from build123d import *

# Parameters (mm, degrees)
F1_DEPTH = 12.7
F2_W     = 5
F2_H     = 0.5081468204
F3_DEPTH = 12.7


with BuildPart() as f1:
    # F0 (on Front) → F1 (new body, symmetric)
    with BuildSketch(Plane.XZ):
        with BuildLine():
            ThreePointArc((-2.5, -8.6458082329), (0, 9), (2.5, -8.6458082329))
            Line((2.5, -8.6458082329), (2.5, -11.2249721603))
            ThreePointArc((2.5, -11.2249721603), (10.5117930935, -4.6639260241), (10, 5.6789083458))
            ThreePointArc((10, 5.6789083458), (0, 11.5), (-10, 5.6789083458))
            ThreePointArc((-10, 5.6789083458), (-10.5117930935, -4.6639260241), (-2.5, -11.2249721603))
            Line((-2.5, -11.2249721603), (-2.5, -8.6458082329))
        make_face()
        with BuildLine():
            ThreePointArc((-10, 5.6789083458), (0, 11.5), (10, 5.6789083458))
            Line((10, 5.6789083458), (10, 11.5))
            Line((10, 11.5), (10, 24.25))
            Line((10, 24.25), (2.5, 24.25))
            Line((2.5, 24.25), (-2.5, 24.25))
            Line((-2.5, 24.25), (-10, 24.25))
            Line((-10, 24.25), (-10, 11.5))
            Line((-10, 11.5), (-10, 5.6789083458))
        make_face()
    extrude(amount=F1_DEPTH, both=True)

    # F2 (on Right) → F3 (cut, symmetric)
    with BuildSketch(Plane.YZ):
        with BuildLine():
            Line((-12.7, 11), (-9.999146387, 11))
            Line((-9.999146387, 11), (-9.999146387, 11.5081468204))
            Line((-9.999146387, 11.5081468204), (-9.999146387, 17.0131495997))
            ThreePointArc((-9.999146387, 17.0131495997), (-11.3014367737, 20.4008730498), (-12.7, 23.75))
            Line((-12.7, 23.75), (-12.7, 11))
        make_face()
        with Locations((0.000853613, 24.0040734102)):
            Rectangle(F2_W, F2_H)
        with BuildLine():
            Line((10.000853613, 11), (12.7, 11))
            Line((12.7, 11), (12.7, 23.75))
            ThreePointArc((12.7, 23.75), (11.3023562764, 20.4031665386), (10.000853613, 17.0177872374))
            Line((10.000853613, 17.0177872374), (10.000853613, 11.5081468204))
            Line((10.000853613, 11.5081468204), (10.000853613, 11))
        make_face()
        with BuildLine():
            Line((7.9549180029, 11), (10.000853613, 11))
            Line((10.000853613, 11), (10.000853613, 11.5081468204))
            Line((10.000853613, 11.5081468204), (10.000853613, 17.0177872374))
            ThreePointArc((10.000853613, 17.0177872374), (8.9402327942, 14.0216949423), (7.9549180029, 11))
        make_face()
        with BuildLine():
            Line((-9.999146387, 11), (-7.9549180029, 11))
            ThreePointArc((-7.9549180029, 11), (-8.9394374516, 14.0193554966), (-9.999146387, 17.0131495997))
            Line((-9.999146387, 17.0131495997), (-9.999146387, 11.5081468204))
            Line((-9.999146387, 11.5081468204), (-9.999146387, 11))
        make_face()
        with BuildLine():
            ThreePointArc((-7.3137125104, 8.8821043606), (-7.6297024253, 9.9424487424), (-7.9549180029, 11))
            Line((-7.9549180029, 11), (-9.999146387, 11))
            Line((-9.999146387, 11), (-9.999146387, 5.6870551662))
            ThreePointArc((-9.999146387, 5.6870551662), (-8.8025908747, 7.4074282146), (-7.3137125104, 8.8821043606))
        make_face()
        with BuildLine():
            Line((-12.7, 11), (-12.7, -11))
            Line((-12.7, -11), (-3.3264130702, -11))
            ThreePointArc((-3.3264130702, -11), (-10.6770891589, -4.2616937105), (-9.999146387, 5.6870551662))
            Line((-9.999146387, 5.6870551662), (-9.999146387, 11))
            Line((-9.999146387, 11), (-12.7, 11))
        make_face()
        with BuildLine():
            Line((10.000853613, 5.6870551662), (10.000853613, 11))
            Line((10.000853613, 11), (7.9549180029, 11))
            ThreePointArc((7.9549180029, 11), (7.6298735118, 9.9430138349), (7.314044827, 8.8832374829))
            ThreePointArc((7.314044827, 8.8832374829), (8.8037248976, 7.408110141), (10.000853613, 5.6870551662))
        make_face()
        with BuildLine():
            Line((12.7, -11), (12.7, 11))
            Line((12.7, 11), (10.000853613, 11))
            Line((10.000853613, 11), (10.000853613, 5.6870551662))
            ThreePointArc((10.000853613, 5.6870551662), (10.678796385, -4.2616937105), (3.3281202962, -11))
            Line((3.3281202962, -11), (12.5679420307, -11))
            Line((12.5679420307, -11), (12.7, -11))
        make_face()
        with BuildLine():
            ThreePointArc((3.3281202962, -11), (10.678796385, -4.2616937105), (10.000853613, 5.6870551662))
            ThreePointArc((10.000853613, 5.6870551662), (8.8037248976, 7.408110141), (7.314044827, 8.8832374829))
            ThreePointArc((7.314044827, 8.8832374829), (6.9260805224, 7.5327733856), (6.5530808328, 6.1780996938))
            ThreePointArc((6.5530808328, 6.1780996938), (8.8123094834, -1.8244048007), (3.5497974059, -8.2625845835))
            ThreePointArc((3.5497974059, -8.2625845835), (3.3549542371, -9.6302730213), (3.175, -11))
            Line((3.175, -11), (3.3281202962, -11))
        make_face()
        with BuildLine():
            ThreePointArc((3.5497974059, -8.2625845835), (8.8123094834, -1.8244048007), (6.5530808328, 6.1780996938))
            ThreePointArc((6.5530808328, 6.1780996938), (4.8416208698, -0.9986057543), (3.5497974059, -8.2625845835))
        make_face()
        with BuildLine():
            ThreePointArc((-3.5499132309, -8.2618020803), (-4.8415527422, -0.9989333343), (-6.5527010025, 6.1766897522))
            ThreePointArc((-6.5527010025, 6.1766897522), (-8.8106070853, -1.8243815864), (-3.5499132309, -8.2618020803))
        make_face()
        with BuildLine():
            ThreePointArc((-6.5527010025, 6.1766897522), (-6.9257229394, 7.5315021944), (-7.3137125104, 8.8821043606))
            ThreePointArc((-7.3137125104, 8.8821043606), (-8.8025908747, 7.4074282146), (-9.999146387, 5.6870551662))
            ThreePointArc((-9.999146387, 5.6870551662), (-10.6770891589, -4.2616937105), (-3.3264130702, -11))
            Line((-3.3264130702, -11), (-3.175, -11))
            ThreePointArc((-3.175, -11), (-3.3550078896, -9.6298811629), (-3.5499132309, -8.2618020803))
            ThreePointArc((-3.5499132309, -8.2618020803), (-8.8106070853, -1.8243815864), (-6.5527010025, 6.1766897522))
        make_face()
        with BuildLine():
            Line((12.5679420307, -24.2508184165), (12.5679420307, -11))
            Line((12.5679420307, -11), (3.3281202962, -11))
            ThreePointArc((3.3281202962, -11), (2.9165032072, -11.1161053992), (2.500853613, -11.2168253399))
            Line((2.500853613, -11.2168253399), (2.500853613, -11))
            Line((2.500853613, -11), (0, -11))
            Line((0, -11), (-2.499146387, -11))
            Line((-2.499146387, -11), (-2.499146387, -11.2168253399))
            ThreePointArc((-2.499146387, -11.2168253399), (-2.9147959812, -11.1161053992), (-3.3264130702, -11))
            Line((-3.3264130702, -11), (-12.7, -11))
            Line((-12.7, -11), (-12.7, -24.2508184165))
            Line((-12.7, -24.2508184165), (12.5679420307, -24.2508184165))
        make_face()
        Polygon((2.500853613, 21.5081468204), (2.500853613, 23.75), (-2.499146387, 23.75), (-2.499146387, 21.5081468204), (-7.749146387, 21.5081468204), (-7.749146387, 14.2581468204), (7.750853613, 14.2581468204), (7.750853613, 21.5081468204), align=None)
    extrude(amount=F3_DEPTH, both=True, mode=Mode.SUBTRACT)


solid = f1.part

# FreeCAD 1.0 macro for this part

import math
import FreeCAD as App
import Part
import Sketcher

V = App.Vector

doc = App.newDocument("Part")
params = doc.addObject("Spreadsheet::Sheet", "Params")
for row, (alias, value) in enumerate([
    ("sketch1_radius", "9 mm"),
    ("sketch1_radius2", "11.5 mm"),
    ("sketch1_width", "20 mm"),
    ("pad1_length", "25.4 mm"),
    ("sketch2_radius", "127 mm"),
    ("sketch2_radius2", "11.5 mm"),
    ("sketch2_width", "5 mm"),
    ("sketch2_width2", "15.5 mm"),
    ("sketch2_height", "34.75 mm"),
    ("pocket1_length", "25.4 mm"),
], start=1):
    params.set(f"A{row}", alias)
    params.set(f"B{row}", "=" + value)
    params.setAlias(f"B{row}", alias)

body = doc.addObject("PartDesign::Body", "Body")
body.AllowCompound = True

sketch1 = body.newObject("Sketcher::SketchObject", "Sketch")
sketch1.AttachmentSupport = (doc.getObject("XZ_Plane"), [""])
sketch1.MapMode = "FlatFace"
sketch1.addGeometry([
    Part.ArcOfCircle(Part.Circle(V(0, 0, 0), V(0, 0, 1), 9), math.radians(-74), math.radians(254)),
    Part.LineSegment(V(2.5, -8.6, 0), V(2.5, -11.2, 0)),
    Part.ArcOfCircle(Part.Circle(V(0, 0, 0), V(0, 0, 1), 11.5), math.radians(-77), math.radians(30)),
    Part.LineSegment(V(10, 5.7, 0), V(10, 24.2, 0)),
    Part.LineSegment(V(10, 24.2, 0), V(-10, 24.2, 0)),
    Part.LineSegment(V(-10, 24.2, 0), V(-10, 5.7, 0)),
    Part.ArcOfCircle(Part.Circle(V(0, 0, 0), V(0, 0, 1), 11.5), math.radians(150), math.radians(257)),
    Part.LineSegment(V(-2.5, -11.2, 0), V(-2.5, -8.6, 0)),
], False)
sketch1.addConstraint([
    Sketcher.Constraint("Coincident", 0, 1, 1, 1),
    Sketcher.Constraint("Coincident", 1, 2, 2, 1),
    Sketcher.Constraint("Coincident", 2, 2, 3, 1),
    Sketcher.Constraint("Coincident", 3, 2, 4, 1),
    Sketcher.Constraint("Coincident", 4, 2, 5, 1),
    Sketcher.Constraint("Coincident", 5, 2, 6, 1),
    Sketcher.Constraint("Coincident", 6, 2, 7, 1),
    Sketcher.Constraint("Coincident", 7, 2, 0, 2),
    Sketcher.Constraint("Vertical", 1),
    Sketcher.Constraint("Vertical", 3),
    Sketcher.Constraint("Horizontal", 4),
    Sketcher.Constraint("Vertical", 5),
    Sketcher.Constraint("Vertical", 7),
    Sketcher.Constraint("Coincident", 0, 3, -1, 1),
    Sketcher.Constraint("Coincident", 2, 3, -1, 1),
    Sketcher.Constraint("Coincident", 6, 3, -1, 1),
    Sketcher.Constraint("Equal", 2, 6),
    Sketcher.Constraint("Horizontal", 2, 2, 5, 2),
    Sketcher.Constraint("Horizontal", 1, 2, 6, 2),
    Sketcher.Constraint("Radius", 0, 9.0),
    Sketcher.Constraint("Radius", 2, 11.5),
    Sketcher.Constraint("DistanceX", 4, 2, 4, 1, 20.0),
    Sketcher.Constraint("DistanceX", 6, 2, 1, 2, 5.0),
    Sketcher.Constraint("DistanceY", -1, 1, 3, 2, 24.25),
])
sketch1.setExpression("Constraints[19]", "Params.sketch1_radius")
sketch1.setExpression("Constraints[20]", "Params.sketch1_radius2")
sketch1.setExpression("Constraints[21]", "Params.sketch1_width")
pad1 = body.newObject("PartDesign::Pad", "Pad")
pad1.Profile = sketch1
pad1.setExpression("Length", "Params.pad1_length")
pad1.Midplane = True

sketch2 = body.newObject("Sketcher::SketchObject", "Sketch001")
sketch2.AttachmentSupport = (doc.getObject("YZ_Plane"), [""])
sketch2.MapMode = "FlatFace"
sketch2.addGeometry([
    Part.ArcOfCircle(Part.Circle(V(-129.18, -26.86, 0), V(0, 0, 1), 127), math.radians(16.34), math.radians(17.34)),
    Part.ArcOfCircle(Part.Circle(V(-129.18, -26.86, 0), V(0, 0, 1), 127), math.radians(17.34), math.radians(20.21)),
    Part.ArcOfCircle(Part.Circle(V(-129.18, -26.86, 0), V(0, 0, 1), 127), math.radians(20.21), math.radians(23.48)),
    Part.LineSegment(V(-12.7, 23.75, 0), V(-12.7, -24.25, 0)),
    Part.LineSegment(V(-12.7, -24.25, 0), V(12.57, -24.25, 0)),
    Part.LineSegment(V(12.57, -24.25, 0), V(12.57, -11, 0)),
    Part.LineSegment(V(12.57, -11, 0), V(12.7, -11, 0)),
    Part.LineSegment(V(12.7, -11, 0), V(12.7, 23.75, 0)),
    Part.ArcOfCircle(Part.Circle(V(129.18, -26.86, 0), V(0, 0, 1), 127), math.radians(156.52), math.radians(159.79)),
    Part.ArcOfCircle(Part.Circle(V(129.18, -26.86, 0), V(0, 0, 1), 127), math.radians(159.79), math.radians(162.66)),
    Part.ArcOfCircle(Part.Circle(V(129.18, -26.86, 0), V(0, 0, 1), 127), math.radians(162.66), math.radians(163.65)),
    Part.ArcOfCircle(Part.Circle(V(129.18, -26.86, 0), V(0, 0, 1), 127), math.radians(163.65), math.radians(164.92)),
    Part.ArcOfCircle(Part.Circle(V(129.18, -26.86, 0), V(0, 0, 1), 127), math.radians(164.92), math.radians(171.58)),
    Part.ArcOfCircle(Part.Circle(V(129.18, -26.86, 0), V(0, 0, 1), 127), math.radians(171.58), math.radians(172.83)),
    Part.LineSegment(V(3.17, -11, 0), V(3.33, -11, 0)),
    Part.ArcOfCircle(Part.Circle(V(0, 0.01, 0), V(0, 0, 1), 11.5), math.radians(-77.44), math.radians(-73.18)),
    Part.LineSegment(V(2.5, -11.22, 0), V(2.5, -11, 0)),
    Part.LineSegment(V(2.5, -11, 0), V(-2.5, -11, 0)),
    Part.LineSegment(V(-2.5, -11, 0), V(-2.5, -11.22, 0)),
    Part.ArcOfCircle(Part.Circle(V(0, 0.01, 0), V(0, 0, 1), 11.5), math.radians(-106.82), math.radians(-102.56)),
    Part.LineSegment(V(-3.33, -11, 0), V(-3.17, -11, 0)),
    Part.ArcOfCircle(Part.Circle(V(-129.18, -26.86, 0), V(0, 0, 1), 127), math.radians(7.17), math.radians(8.42)),
    Part.ArcOfCircle(Part.Circle(V(-129.18, -26.86, 0), V(0, 0, 1), 127), math.radians(8.42), math.radians(15.08)),
    Part.ArcOfCircle(Part.Circle(V(-129.18, -26.86, 0), V(0, 0, 1), 127), math.radians(15.08), math.radians(16.34)),
    Part.LineSegment(V(-2.5, 24.26, 0), V(-2.5, 21.51, 0)),
    Part.LineSegment(V(-2.5, 21.51, 0), V(-7.75, 21.51, 0)),
    Part.LineSegment(V(-7.75, 21.51, 0), V(-7.75, 14.26, 0)),
    Part.LineSegment(V(-7.75, 14.26, 0), V(7.75, 14.26, 0)),
    Part.LineSegment(V(7.75, 14.26, 0), V(7.75, 21.51, 0)),
    Part.LineSegment(V(7.75, 21.51, 0), V(2.5, 21.51, 0)),
    Part.LineSegment(V(2.5, 21.51, 0), V(2.5, 24.26, 0)),
    Part.LineSegment(V(2.5, 24.26, 0), V(-2.5, 24.26, 0)),
], False)
sketch2.addConstraint([
    Sketcher.Constraint("Tangent", 0, 2, 1, 1),
    Sketcher.Constraint("Tangent", 1, 2, 2, 1),
    Sketcher.Constraint("Coincident", 2, 2, 3, 1),
    Sketcher.Constraint("Coincident", 3, 2, 4, 1),
    Sketcher.Constraint("Coincident", 4, 2, 5, 1),
    Sketcher.Constraint("Coincident", 5, 2, 6, 1),
    Sketcher.Constraint("Coincident", 6, 2, 7, 1),
    Sketcher.Constraint("Coincident", 7, 2, 8, 1),
    Sketcher.Constraint("Tangent", 8, 2, 9, 1),
    Sketcher.Constraint("Tangent", 9, 2, 10, 1),
    Sketcher.Constraint("Tangent", 10, 2, 11, 1),
    Sketcher.Constraint("Tangent", 11, 2, 12, 1),
    Sketcher.Constraint("Tangent", 12, 2, 13, 1),
    Sketcher.Constraint("Coincident", 13, 2, 14, 1),
    Sketcher.Constraint("Coincident", 14, 2, 15, 2),
    Sketcher.Constraint("Coincident", 15, 1, 16, 1),
    Sketcher.Constraint("Coincident", 16, 2, 17, 1),
    Sketcher.Constraint("Coincident", 17, 2, 18, 1),
    Sketcher.Constraint("Coincident", 18, 2, 19, 2),
    Sketcher.Constraint("Coincident", 19, 1, 20, 1),
    Sketcher.Constraint("Coincident", 20, 2, 21, 1),
    Sketcher.Constraint("Tangent", 21, 2, 22, 1),
    Sketcher.Constraint("Tangent", 22, 2, 23, 1),
    Sketcher.Constraint("Tangent", 23, 2, 0, 1),
    Sketcher.Constraint("Coincident", 24, 2, 25, 1),
    Sketcher.Constraint("Coincident", 25, 2, 26, 1),
    Sketcher.Constraint("Coincident", 26, 2, 27, 1),
    Sketcher.Constraint("Coincident", 27, 2, 28, 1),
    Sketcher.Constraint("Coincident", 28, 2, 29, 1),
    Sketcher.Constraint("Coincident", 29, 2, 30, 1),
    Sketcher.Constraint("Coincident", 30, 2, 31, 1),
    Sketcher.Constraint("Coincident", 31, 2, 24, 1),
    Sketcher.Constraint("Vertical", 3),
    Sketcher.Constraint("Horizontal", 4),
    Sketcher.Constraint("Vertical", 5),
    Sketcher.Constraint("Horizontal", 6),
    Sketcher.Constraint("Vertical", 7),
    Sketcher.Constraint("Horizontal", 14),
    Sketcher.Constraint("Vertical", 16),
    Sketcher.Constraint("Horizontal", 17),
    Sketcher.Constraint("Vertical", 18),
    Sketcher.Constraint("Horizontal", 20),
    Sketcher.Constraint("Vertical", 24),
    Sketcher.Constraint("Horizontal", 25),
    Sketcher.Constraint("Vertical", 26),
    Sketcher.Constraint("Horizontal", 27),
    Sketcher.Constraint("Vertical", 28),
    Sketcher.Constraint("Horizontal", 29),
    Sketcher.Constraint("Vertical", 30),
    Sketcher.Constraint("Horizontal", 31),
    Sketcher.Constraint("Coincident", 2, 3, 0, 3),
    Sketcher.Constraint("Coincident", 10, 3, 8, 3),
    Sketcher.Constraint("Coincident", 12, 3, 8, 3),
    Sketcher.Constraint("Coincident", 19, 3, 15, 3),
    Sketcher.Constraint("Coincident", 21, 3, 0, 3),
    Sketcher.Constraint("Equal", 2, 8),
    Sketcher.Constraint("Equal", 12, 13),
    Sketcher.Constraint("Equal", 15, 19),
    Sketcher.Constraint("Equal", 21, 22),
    Sketcher.Constraint("Symmetric", 0, 3, 8, 3, -2),
    Sketcher.Constraint("Horizontal", 2, 2, 7, 2),
    Sketcher.Constraint("Horizontal", 0, 2, 9, 2),
    Sketcher.Constraint("Horizontal", 6, 2, 13, 2),
    Sketcher.Constraint("Horizontal", 14, 2, 16, 2),
    Sketcher.Constraint("Horizontal", 15, 1, 18, 2),
    Sketcher.Constraint("Horizontal", 17, 2, 19, 1),
    Sketcher.Constraint("Horizontal", 25, 2, 28, 2),
    Sketcher.Constraint("Vertical", 18, 2, 24, 2),
    Sketcher.Constraint("Vertical", 16, 2, 29, 2),
    Sketcher.Constraint("Equal", 25, 29),
    Sketcher.Constraint("Radius", 0, 127.0),
    Sketcher.Constraint("Radius", 15, 11.5),
    Sketcher.Constraint("DistanceX", 17, 2, 17, 1, 5.0),
    Sketcher.Constraint("DistanceX", 27, 1, 27, 2, 15.5),
    Sketcher.Constraint("DistanceY", -1, 1, 0, 2, 11.0),
    Sketcher.Constraint("DistanceY", 5, 2, -1, 1, 11.0),
    Sketcher.Constraint("DistanceX", 1, 2, 19, 3, 10.0),
    Sketcher.Constraint("DistanceX", 15, 3, 8, 2, 10.0),
    Sketcher.Constraint("DistanceY", 7, 1, 7, 2, 34.75),
    Sketcher.Constraint("DistanceY", 24, 2, 24, 1, 2.75),
    Sketcher.Constraint("DistanceY", 26, 2, 26, 1, 7.25),
    Sketcher.Constraint("DistanceX", 2, 2, -1, 1, 12.7),
    Sketcher.Constraint("DistanceX", -1, 1, 13, 2, 3.175),
    Sketcher.Constraint("DistanceX", 14, 1, 14, 2, 0.15312),
    Sketcher.Constraint("DistanceY", 3, 2, 3, 1, 48.000818),
    Sketcher.Constraint("DistanceY", -1, 1, 11, 2, 6.1781),
    Sketcher.Constraint("DistanceX", 22, 2, -1, 1, 6.552701),
    Sketcher.Constraint("DistanceX", 15, 3, 10, 3, 129.180199),
    Sketcher.Constraint("DistanceX", 21, 2, 19, 1, 0.2235),
    Sketcher.Constraint("DistanceX", 4, 1, 4, 2, 25.267942),
    Sketcher.Constraint("DistanceX", 10, 2, 8, 2, 2.686809),
    Sketcher.Constraint("DistanceY", 12, 2, 15, 3, 8.270731),
    Sketcher.Constraint("DistanceX", 23, 2, 22, 2, 0.761012),
    Sketcher.Constraint("DistanceY", 8, 2, 24, 2, 4.49036),
])
sketch2.setExpression("Constraints[70]", "Params.sketch2_radius")
sketch2.setExpression("Constraints[71]", "Params.sketch2_radius2")
sketch2.setExpression("Constraints[72]", "Params.sketch2_width")
sketch2.setExpression("Constraints[73]", "Params.sketch2_width2")
sketch2.setExpression("Constraints[78]", "Params.sketch2_height")
pocket1 = body.newObject("PartDesign::Pocket", "Pocket")
pocket1.Profile = sketch2
pocket1.setExpression("Length", "Params.pocket1_length")
pocket1.Midplane = True

doc.recompute()
